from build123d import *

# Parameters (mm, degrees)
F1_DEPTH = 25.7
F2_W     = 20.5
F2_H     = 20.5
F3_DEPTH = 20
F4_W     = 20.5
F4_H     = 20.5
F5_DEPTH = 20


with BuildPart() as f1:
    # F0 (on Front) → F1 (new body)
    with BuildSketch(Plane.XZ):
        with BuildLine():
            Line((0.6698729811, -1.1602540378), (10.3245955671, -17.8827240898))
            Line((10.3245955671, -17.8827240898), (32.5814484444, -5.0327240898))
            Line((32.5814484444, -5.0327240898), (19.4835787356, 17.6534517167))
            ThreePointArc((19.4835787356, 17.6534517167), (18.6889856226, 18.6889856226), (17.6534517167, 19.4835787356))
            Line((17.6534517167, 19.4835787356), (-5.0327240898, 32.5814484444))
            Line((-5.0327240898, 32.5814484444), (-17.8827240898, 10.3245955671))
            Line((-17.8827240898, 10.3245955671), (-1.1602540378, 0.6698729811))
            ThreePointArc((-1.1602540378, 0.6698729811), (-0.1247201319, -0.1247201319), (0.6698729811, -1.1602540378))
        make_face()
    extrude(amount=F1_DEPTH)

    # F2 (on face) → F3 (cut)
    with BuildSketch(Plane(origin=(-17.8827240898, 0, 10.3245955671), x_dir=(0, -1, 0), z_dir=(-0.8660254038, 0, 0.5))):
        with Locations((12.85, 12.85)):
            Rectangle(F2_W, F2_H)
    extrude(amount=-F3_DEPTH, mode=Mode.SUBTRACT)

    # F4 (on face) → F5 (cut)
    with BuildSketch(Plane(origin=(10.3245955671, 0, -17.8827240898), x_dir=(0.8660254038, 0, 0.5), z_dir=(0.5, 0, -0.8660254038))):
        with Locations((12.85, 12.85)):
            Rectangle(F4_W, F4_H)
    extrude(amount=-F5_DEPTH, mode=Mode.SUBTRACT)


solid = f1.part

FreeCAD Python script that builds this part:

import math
import FreeCAD as App
import Part
import Sketcher

V = App.Vector
Q = App.Units.Quantity


def add_polygon(sketch, points):
    """Adds a closed chain of lines whose ends are joined by coincident constraints."""
    first, n = sketch.GeometryCount, len(points)
    for a, b in zip(points, points[1:] + points[:1]):
        sketch.addGeometry(Part.LineSegment(App.Vector(*a, 0), App.Vector(*b, 0)), False)
    for i in range(n):
        sketch.addConstraint(Sketcher.Constraint("Coincident", first + i, 2, first + (i + 1) % n, 1))

doc = App.newDocument("Part")
params = doc.addObject("Spreadsheet::Sheet", "Params")
for row, (alias, value) in enumerate([
    ("sketch1_radius", "5 mm"),
    ("sketch1_length", "25.7 mm"),
    ("pad1_length", "25.7 mm"),
    ("sketch2_width", "20.5 mm"),
    ("pocket1_length", "20 mm"),
    ("sketch3_width", "20.5 mm"),
    ("pocket2_length", "20 mm"),
], start=1):
    params.set(f"A{row}", alias)
    params.set(f"B{row}", "=" + value)
    params.setAlias(f"B{row}", alias)

body = doc.addObject("PartDesign::Body", "Body")

# Sketch on XZ plane
sketch1 = body.newObject("Sketcher::SketchObject", "Sketch")
sketch1.AttachmentSupport = (doc.getObject("XZ_Plane"), [""])
sketch1.MapMode = "FlatFace"
sketch1.addGeometry([
    Part.LineSegment(V(0.669873, -1.160254, 0), V(10.324596, -17.882724, 0)),  # 0
    Part.LineSegment(V(10.324596, -17.882724, 0), V(32.581448, -5.032724, 0)),  # 1
    Part.LineSegment(V(32.581448, -5.032724, 0), V(19.483579, 17.653452, 0)),  # 2
    Part.ArcOfCircle(Part.Circle(V(15.153452, 15.153452, 0), V(0, 0, 1), 5), math.radians(30), math.radians(60)),  # 3
    Part.LineSegment(V(17.653452, 19.483579, 0), V(-5.032724, 32.581448, 0)),  # 4
    Part.LineSegment(V(-5.032724, 32.581448, 0), V(-17.882724, 10.324596, 0)),  # 5
    Part.LineSegment(V(-17.882724, 10.324596, 0), V(-1.160254, 0.669873, 0)),  # 6
    Part.ArcOfCircle(Part.Circle(V(-3.660254, -3.660254, 0), V(0, 0, 1), 5), math.radians(30), math.radians(60)),  # 7
], False)
sketch1.addConstraint([
    Sketcher.Constraint("Coincident", 0, 2, 1, 1),
    Sketcher.Constraint("Coincident", 1, 2, 2, 1),
    Sketcher.Constraint("Tangent", 2, 2, 3, 1),
    Sketcher.Constraint("Tangent", 3, 2, 4, 1),
    Sketcher.Constraint("Coincident", 4, 2, 5, 1),
    Sketcher.Constraint("Coincident", 5, 2, 6, 1),
    Sketcher.Constraint("Tangent", 6, 2, 7, 2),
    Sketcher.Constraint("Tangent", 7, 1, 0, 1),
    Sketcher.Constraint("Equal", 3, 7),
    Sketcher.Constraint("Perpendicular", 0, 1),
    Sketcher.Constraint("Perpendicular", 1, 2),
    Sketcher.Constraint("Perpendicular", 4, 5),
    Sketcher.Constraint("Perpendicular", 5, 6),
    Sketcher.Constraint("Equal", 2, 4),
    Sketcher.Constraint("Equal", 1, 5),
    Sketcher.Constraint("Radius", 3, Q("5 mm")),
    Sketcher.Constraint("Angle", 0, Q("-60 deg")),
    Sketcher.Constraint("Angle", 4, Q("150 deg")),
    Sketcher.Constraint("Distance", 1, Q("25.7 mm")),
    Sketcher.Constraint("Distance", 2, Q("26.195739 mm")),
    Sketcher.Constraint("DistanceX", -1, 1, 3, 3, Q("15.153452 mm")),
    Sketcher.Constraint("DistanceY", -1, 1, 3, 3, Q("15.153452 mm")),
])
sketch1.setExpression("Constraints[15]", "Params.sketch1_radius")
sketch1.setExpression("Constraints[18]", "Params.sketch1_length")
pad1 = body.newObject("PartDesign::Pad", "Pad")
pad1.Profile = sketch1
pad1.setExpression("Length", "Params.pad1_length")

# Sketch on an angled plane
sketch2 = body.newObject("Sketcher::SketchObject", "Sketch001")
sketch2.Placement = App.Placement(V(-17.882724, 0, 10.324596), App.Rotation(V(0, -1, 0), V(0.5, 0, 0.866025404), V(-0.866025404, 0, 0.5), "ZXY"))
add_polygon(sketch2, [(2.6, 23.1), (2.6, 2.6), (23.1, 2.6), (23.1, 23.1)])  # lines 0-3
sketch2.addConstraint([
    Sketcher.Constraint("Vertical", 0),
    Sketcher.Constraint("Horizontal", 1),
    Sketcher.Constraint("Vertical", 2),
    Sketcher.Constraint("Horizontal", 3),
    Sketcher.Constraint("Equal", 3, 0),
    Sketcher.Constraint("DistanceX", 1, 1, 1, 2, Q("20.5 mm")),
    Sketcher.Constraint("DistanceX", -1, 1, 0, 2, Q("2.6 mm")),
    Sketcher.Constraint("DistanceY", -1, 1, 0, 2, Q("2.6 mm")),
])
sketch2.setExpression("Constraints[9]", "Params.sketch2_width")
pocket1 = body.newObject("PartDesign::Pocket", "Pocket")
pocket1.Profile = sketch2
pocket1.setExpression("Length", "Params.pocket1_length")

# Sketch on an angled plane
sketch3 = body.newObject("Sketcher::SketchObject", "Sketch002")
sketch3.Placement = App.Placement(V(10.324596, 0, -17.882724), App.Rotation(V(0.866025404, 0, 0.5), V(0, -1, 0), V(0.5, 0, -0.866025404), "ZXY"))
add_polygon(sketch3, [(2.6, 23.1), (2.6, 2.6), (23.1, 2.6), (23.1, 23.1)])  # lines 0-3
sketch3.addConstraint([
    Sketcher.Constraint("Vertical", 0),
    Sketcher.Constraint("Horizontal", 1),
    Sketcher.Constraint("Vertical", 2),
    Sketcher.Constraint("Horizontal", 3),
    Sketcher.Constraint("Equal", 3, 0),
    Sketcher.Constraint("DistanceX", 1, 1, 1, 2, Q("20.5 mm")),
    Sketcher.Constraint("DistanceX", -1, 1, 0, 2, Q("2.6 mm")),
    Sketcher.Constraint("DistanceY", -1, 1, 0, 2, Q("2.6 mm")),
])
sketch3.setExpression("Constraints[9]", "Params.sketch3_width")
pocket2 = body.newObject("PartDesign::Pocket", "Pocket001")
pocket2.Profile = sketch3
pocket2.setExpression("Length", "Params.pocket2_length")

doc.recompute()
